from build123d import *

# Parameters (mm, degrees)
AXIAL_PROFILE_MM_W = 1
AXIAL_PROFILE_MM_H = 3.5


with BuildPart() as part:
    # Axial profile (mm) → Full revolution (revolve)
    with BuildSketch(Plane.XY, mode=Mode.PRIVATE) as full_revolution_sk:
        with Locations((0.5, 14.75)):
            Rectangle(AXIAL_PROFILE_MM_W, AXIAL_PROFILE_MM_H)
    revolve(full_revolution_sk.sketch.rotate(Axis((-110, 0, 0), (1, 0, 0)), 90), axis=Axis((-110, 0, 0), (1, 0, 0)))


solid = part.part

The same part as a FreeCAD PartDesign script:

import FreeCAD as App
import Part
import Sketcher

doc = App.newDocument("Part")
body = doc.addObject("PartDesign::Body", "Body")

# Sketch on XY plane
sketch1 = body.newObject("Sketcher::SketchObject", "Sketch")
sketch1.AttachmentSupport = (doc.getObject("XY_Plane"), [""])
sketch1.MapMode = "FlatFace"
sketch1.addGeometry([
    Part.LineSegment(App.Vector(0, 16.5, 0), App.Vector(0, 13, 0)),
    Part.LineSegment(App.Vector(0, 13, 0), App.Vector(1, 13, 0)),
    Part.LineSegment(App.Vector(1, 13, 0), App.Vector(1, 16.5, 0)),
    Part.LineSegment(App.Vector(1, 16.5, 0), App.Vector(0, 16.5, 0)),
], False)
sketch1.addConstraint([
    Sketcher.Constraint("Coincident", 0, 2, 1, 1),
    Sketcher.Constraint("Coincident", 1, 2, 2, 1),
    Sketcher.Constraint("Coincident", 2, 2, 3, 1),
    Sketcher.Constraint("Coincident", 3, 2, 0, 1),
    Sketcher.Constraint("Vertical", 0),
    Sketcher.Constraint("Horizontal", 1),
    Sketcher.Constraint("Vertical", 2),
    Sketcher.Constraint("Horizontal", 3),
    Sketcher.Constraint("PointOnObject", 0, 2, -2),
    Sketcher.Constraint("DistanceX", 1, 1, 1, 2, 1.0),
    Sketcher.Constraint("DistanceY", 0, 2, 0, 1, 3.5),
    Sketcher.Constraint("DistanceY", -1, 1, 0, 2, 13.0),
])
revolution = body.newObject("PartDesign::Revolution", "Revolution")
revolution.Profile = sketch1
revolution.ReferenceAxis = (sketch1, ["H_Axis"])
revolution.Angle = 360

doc.recompute()
